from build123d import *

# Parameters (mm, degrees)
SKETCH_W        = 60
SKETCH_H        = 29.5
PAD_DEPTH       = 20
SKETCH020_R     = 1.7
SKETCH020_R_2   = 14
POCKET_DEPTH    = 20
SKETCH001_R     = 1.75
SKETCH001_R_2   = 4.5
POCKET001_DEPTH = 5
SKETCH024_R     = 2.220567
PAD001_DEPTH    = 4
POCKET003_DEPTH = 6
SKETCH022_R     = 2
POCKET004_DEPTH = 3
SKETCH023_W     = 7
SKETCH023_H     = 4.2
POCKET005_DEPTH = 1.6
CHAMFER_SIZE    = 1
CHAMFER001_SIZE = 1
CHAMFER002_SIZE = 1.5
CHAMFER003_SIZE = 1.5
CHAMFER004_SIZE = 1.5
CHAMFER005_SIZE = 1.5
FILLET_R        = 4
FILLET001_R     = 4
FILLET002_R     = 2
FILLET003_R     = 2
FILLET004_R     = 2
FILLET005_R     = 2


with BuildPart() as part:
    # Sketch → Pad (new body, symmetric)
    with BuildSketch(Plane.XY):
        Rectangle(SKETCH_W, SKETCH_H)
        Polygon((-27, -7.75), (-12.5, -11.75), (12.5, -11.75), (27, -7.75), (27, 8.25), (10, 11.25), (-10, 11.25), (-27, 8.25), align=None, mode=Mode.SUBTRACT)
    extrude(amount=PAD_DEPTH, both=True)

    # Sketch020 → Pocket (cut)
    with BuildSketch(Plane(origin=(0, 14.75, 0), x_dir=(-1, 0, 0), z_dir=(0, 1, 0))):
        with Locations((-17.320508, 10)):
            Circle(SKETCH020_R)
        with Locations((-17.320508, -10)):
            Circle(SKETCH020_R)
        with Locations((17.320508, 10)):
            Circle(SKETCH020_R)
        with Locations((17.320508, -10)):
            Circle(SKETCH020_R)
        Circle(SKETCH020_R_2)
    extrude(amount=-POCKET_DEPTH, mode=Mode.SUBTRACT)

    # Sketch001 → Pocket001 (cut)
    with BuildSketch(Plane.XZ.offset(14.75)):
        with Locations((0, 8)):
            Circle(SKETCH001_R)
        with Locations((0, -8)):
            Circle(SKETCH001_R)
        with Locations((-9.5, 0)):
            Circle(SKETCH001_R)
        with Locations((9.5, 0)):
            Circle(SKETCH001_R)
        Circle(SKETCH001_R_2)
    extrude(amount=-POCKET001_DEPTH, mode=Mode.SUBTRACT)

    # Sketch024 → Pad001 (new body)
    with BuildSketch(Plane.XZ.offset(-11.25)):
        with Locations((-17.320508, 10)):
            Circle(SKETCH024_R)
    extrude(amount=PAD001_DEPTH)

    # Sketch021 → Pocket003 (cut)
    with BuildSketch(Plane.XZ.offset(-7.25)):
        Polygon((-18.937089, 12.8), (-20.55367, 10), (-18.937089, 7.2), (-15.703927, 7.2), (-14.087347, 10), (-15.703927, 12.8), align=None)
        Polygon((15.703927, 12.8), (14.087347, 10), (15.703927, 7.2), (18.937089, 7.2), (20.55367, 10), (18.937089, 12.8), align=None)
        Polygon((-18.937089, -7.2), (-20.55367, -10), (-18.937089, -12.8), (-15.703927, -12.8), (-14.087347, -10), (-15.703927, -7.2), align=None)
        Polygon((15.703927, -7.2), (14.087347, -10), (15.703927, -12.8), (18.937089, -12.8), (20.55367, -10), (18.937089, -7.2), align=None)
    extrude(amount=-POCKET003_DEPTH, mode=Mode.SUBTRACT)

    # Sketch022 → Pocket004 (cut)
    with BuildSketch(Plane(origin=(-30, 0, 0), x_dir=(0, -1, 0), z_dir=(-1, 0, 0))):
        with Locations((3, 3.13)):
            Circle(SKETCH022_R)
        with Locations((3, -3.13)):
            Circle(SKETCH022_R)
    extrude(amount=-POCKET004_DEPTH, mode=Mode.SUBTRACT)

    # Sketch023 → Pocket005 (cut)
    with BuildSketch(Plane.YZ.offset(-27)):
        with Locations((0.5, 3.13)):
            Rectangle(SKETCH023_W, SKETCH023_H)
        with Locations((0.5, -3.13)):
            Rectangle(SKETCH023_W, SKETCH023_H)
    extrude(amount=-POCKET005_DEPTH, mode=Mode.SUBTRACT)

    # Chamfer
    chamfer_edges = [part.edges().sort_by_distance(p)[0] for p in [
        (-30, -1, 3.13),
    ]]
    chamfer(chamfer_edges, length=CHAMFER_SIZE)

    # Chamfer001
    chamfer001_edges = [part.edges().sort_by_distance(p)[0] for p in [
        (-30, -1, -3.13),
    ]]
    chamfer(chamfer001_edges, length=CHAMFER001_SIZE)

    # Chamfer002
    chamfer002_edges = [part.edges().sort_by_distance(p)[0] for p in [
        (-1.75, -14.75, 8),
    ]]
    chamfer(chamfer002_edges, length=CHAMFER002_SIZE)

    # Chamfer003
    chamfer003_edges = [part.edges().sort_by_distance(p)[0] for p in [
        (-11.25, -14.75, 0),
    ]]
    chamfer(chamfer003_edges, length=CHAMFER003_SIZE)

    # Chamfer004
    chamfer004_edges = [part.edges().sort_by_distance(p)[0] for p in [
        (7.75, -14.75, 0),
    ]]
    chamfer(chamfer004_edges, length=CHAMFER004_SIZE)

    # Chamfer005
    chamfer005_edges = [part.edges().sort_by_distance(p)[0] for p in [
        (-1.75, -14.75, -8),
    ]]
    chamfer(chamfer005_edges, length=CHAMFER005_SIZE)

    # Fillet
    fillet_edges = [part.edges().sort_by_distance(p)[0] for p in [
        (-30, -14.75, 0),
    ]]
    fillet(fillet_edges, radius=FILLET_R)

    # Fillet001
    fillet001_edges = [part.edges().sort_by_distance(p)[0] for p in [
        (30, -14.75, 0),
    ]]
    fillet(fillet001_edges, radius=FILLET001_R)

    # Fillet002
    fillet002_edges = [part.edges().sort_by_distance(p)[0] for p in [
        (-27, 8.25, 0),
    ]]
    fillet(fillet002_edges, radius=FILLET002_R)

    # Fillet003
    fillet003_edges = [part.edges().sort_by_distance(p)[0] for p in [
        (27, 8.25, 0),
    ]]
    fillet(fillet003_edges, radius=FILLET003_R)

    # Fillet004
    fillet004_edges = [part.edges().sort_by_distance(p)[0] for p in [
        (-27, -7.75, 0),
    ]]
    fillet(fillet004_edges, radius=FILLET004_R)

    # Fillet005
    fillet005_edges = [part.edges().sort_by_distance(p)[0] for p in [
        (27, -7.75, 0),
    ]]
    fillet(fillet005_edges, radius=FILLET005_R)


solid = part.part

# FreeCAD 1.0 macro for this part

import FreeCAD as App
import Part
import Sketcher
from FreeCAD import Vector
Q = App.Units.Quantity


def edges_at(feature, points):
    """Names of the edges that pass closest to the given points."""
    edges = feature.Shape.Edges
    near = lambda p: min(range(len(edges)), key=lambda i: edges[i].distToShape(Part.Vertex(*p))[0])
    return sorted({f"Edge{near(p) + 1}" for p in points})


def add_polygon(sketch, points):
    """Adds a closed chain of lines whose ends are joined by coincident constraints."""
    first, n = sketch.GeometryCount, len(points)
    for a, b in zip(points, points[1:] + points[:1]):
        sketch.addGeometry(Part.LineSegment(App.Vector(*a, 0), App.Vector(*b, 0)), False)
    for i in range(n):
        sketch.addConstraint(Sketcher.Constraint("Coincident", first + i, 2, first + (i + 1) % n, 1))

doc = App.newDocument("Part")
body = doc.addObject("PartDesign::Body", "Body")

# Sketch on XY plane
sketch1 = body.newObject("Sketcher::SketchObject", "Sketch")
sketch1.AttachmentSupport = (doc.getObject("XY_Plane"), [""])
sketch1.MapMode = "FlatFace"
add_polygon(sketch1, [(-30, 15), (-30, -15), (30, -15), (30, 15)])  # lines 0-3
add_polygon(sketch1, [(-12, -12), (-27, -8), (-27, 8), (-10, 11), (10, 11), (27, 8), (27, -8), (12, -12)])  # lines 4-11
sketch1.addConstraint([
    Sketcher.Constraint("Vertical", 0),
    Sketcher.Constraint("Horizontal", 1),
    Sketcher.Constraint("Vertical", 2),
    Sketcher.Constraint("Horizontal", 3),
    Sketcher.Constraint("Vertical", 5),
    Sketcher.Constraint("Horizontal", 7),
    Sketcher.Constraint("Vertical", 9),
    Sketcher.Constraint("Horizontal", 11),
    Sketcher.Constraint("Symmetric", 0, 2, 2, 2, -1, 1),
    Sketcher.Constraint("Symmetric", 5, 2, 8, 2, -2),
    Sketcher.Constraint("Horizontal", 4, 2, 9, 2),
    Sketcher.Constraint("Equal", 6, 8),
    Sketcher.Constraint("Equal", 4, 10),
    Sketcher.Constraint("DistanceX", 1, 1, 1, 2, 60.0),
    Sketcher.Constraint("DistanceX", 7, 1, 7, 2, 20.0),
    Sketcher.Constraint("DistanceX", 11, 2, 11, 1, 25.0),
    Sketcher.Constraint("DistanceY", 5, 1, 5, 2, 16.0),
    Sketcher.Constraint("DistanceY", 0, 2, 0, 1, 29.5),
    Sketcher.Constraint("DistanceX", 4, 2, -1, 1, 27.0),
    Sketcher.Constraint("DistanceY", 0, 2, 4, 2, 7.0),
    Sketcher.Constraint("DistanceY", 5, 2, 6, 2, 3.0),
    Sketcher.Constraint("DistanceY", 10, 2, 9, 2, 4.0),
])
pad1 = body.newObject("PartDesign::Pad", "Pad")
pad1.Profile = sketch1
pad1.Length = 40
pad1.Midplane = True

# Sketch on XZ plane
sketch2 = body.newObject("Sketcher::SketchObject", "Sketch001")
sketch2.AttachmentSupport = (doc.getObject("XZ_Plane"), [""])
sketch2.MapMode = "FlatFace"
sketch2.AttachmentOffset = App.Placement(Vector(0, 0, -14.75), App.Rotation())
sketch2.addGeometry([
    Part.Circle(Vector(17.3, 10, 0), Vector(0, 0, 1), 1.7),  # 0
    Part.Circle(Vector(17.3, -10, 0), Vector(0, 0, 1), 1.7),  # 1
    Part.Circle(Vector(-17.3, 10, 0), Vector(0, 0, 1), 1.7),  # 2
    Part.Circle(Vector(-17.3, -10, 0), Vector(0, 0, 1), 1.7),  # 3
    Part.Circle(Vector(0, 0, 0), Vector(0, 0, 1), 14),  # 4
], False)
sketch2.addConstraint([
    Sketcher.Constraint("Coincident", 4, 3, -1, 1),
    Sketcher.Constraint("Equal", 0, 1),
    Sketcher.Constraint("Equal", 1, 2),
    Sketcher.Constraint("Equal", 2, 3),
    Sketcher.Constraint("Symmetric", 1, 3, 2, 3, -1, 1),
    Sketcher.Constraint("Symmetric", 0, 3, 3, 3, -1, 1),
    Sketcher.Constraint("Symmetric", 0, 3, 2, 3, -2),
    Sketcher.Constraint("Diameter", 4, 28.0),
    Sketcher.Constraint("Diameter", 0, 3.4),
    Sketcher.Constraint("DistanceY", -1, 1, 0, 3, 10.0),
    Sketcher.Constraint("DistanceX", -1, 1, 0, 3, 17.320508),
])
pocket1 = body.newObject("PartDesign::Pocket", "Pocket")
pocket1.Profile = sketch2
pocket1.Length = 20
pocket1.Reversed = True

# Sketch on XZ plane
sketch3 = body.newObject("Sketcher::SketchObject", "Sketch002")
sketch3.AttachmentSupport = (doc.getObject("XZ_Plane"), [""])
sketch3.MapMode = "FlatFace"
sketch3.AttachmentOffset = App.Placement(Vector(0, 0, 14.75), App.Rotation())
sketch3.addGeometry([
    Part.Circle(Vector(0, 8, 0), Vector(0, 0, 1), 1.8),  # 0
    Part.Circle(Vector(0, -8, 0), Vector(0, 0, 1), 1.8),  # 1
    Part.Circle(Vector(-9.5, 0, 0), Vector(0, 0, 1), 1.8),  # 2
    Part.Circle(Vector(9.5, 0, 0), Vector(0, 0, 1), 1.8),  # 3
    Part.Circle(Vector(0, 0, 0), Vector(0, 0, 1), 4.5),  # 4
], False)
sketch3.addConstraint([
    Sketcher.Constraint("Coincident", 4, 3, -1, 1),
    Sketcher.Constraint("Equal", 0, 1),
    Sketcher.Constraint("Equal", 1, 2),
    Sketcher.Constraint("Equal", 2, 3),
    Sketcher.Constraint("Symmetric", 0, 3, 1, 3, -1, 1),
    Sketcher.Constraint("Symmetric", 2, 3, 3, 3, -1, 1),
    Sketcher.Constraint("PointOnObject", 0, 3, -2),
    Sketcher.Constraint("PointOnObject", 2, 3, -1),
    Sketcher.Constraint("Diameter", 4, 9.0),
    Sketcher.Constraint("Diameter", 0, 3.5),
    Sketcher.Constraint("DistanceY", -1, 1, 0, 3, 8.0),
    Sketcher.Constraint("DistanceX", 2, 3, 3, 3, 19.0),
])
pocket2 = body.newObject("PartDesign::Pocket", "Pocket001")
pocket2.Profile = sketch3
pocket2.Length = 5

# Sketch on XZ plane
sketch4 = body.newObject("Sketcher::SketchObject", "Sketch003")
sketch4.AttachmentSupport = (doc.getObject("XZ_Plane"), [""])
sketch4.MapMode = "FlatFace"
sketch4.AttachmentOffset = App.Placement(Vector(0, 0, -11.25), App.Rotation())
sketch4.addGeometry(Part.Circle(Vector(-17.3, 10, 0), Vector(0, 0, 1), 2.2), False)
sketch4.addConstraint([
    Sketcher.Constraint("DistanceY", -1, 1, 0, 3, 10.0),
    Sketcher.Constraint("Diameter", 0, 4.441134),
    Sketcher.Constraint("DistanceX", 0, 3, -1, 1, 17.320508),
])
pad2 = body.newObject("PartDesign::Pad", "Pad001")
pad2.Profile = sketch4
pad2.Length = 4

# Sketch on XZ plane
sketch5 = body.newObject("Sketcher::SketchObject", "Sketch004")
sketch5.AttachmentSupport = (doc.getObject("XZ_Plane"), [""])
sketch5.MapMode = "FlatFace"
sketch5.AttachmentOffset = App.Placement(Vector(0, 0, -7.25), App.Rotation())
add_polygon(sketch5, [(-18.9, 12.8), (-20.6, 10), (-18.9, 7.2), (-15.7, 7.2), (-14.1, 10), (-15.7, 12.8)])  # lines 0-5
add_polygon(sketch5, [(15.7, 12.8), (14.1, 10), (15.7, 7.2), (18.9, 7.2), (20.6, 10), (18.9, 12.8)])  # lines 6-11
add_polygon(sketch5, [(-18.9, -7.2), (-20.6, -10), (-18.9, -12.8), (-15.7, -12.8), (-14.1, -10), (-15.7, -7.2)])  # lines 12-17
add_polygon(sketch5, [(15.7, -7.2), (14.1, -10), (15.7, -12.8), (18.9, -12.8), (20.6, -10), (18.9, -7.2)])  # lines 18-23
sketch5.addConstraint([
    Sketcher.Constraint("Horizontal", 2),
    Sketcher.Constraint("Horizontal", 5),
    Sketcher.Constraint("Horizontal", 8),
    Sketcher.Constraint("Horizontal", 11),
    Sketcher.Constraint("Horizontal", 14),
    Sketcher.Constraint("Horizontal", 17),
    Sketcher.Constraint("Horizontal", 20),
    Sketcher.Constraint("Horizontal", 23),
    Sketcher.Constraint("Symmetric", 9, 2, 12, 2, -1, 1),
    Sketcher.Constraint("Symmetric", 10, 2, 13, 2, -1, 1),
    Sketcher.Constraint("Symmetric", 6, 2, 15, 2, -1, 1),
    Sketcher.Constraint("Symmetric", 7, 2, 16, 2, -1, 1),
    Sketcher.Constraint("Symmetric", 3, 2, 18, 2, -1, 1),
    Sketcher.Constraint("Symmetric", 4, 2, 19, 2, -1, 1),
    Sketcher.Constraint("Symmetric", 0, 2, 21, 2, -1, 1),
    Sketcher.Constraint("Symmetric", 1, 2, 22, 2, -1, 1),
    Sketcher.Constraint("Symmetric", 3, 2, 6, 2, -2),
    Sketcher.Constraint("Symmetric", 2, 2, 7, 2, -2),
    Sketcher.Constraint("Symmetric", 0, 2, 9, 2, -2),
    Sketcher.Constraint("Symmetric", 5, 2, 10, 2, -2),
    Sketcher.Constraint("Parallel", 0, 3),
    Sketcher.Constraint("Parallel", 1, 4),
    Sketcher.Constraint("Parallel", 3, 6),
    Sketcher.Constraint("Parallel", 4, 7),
    Sketcher.Constraint("Parallel", 6, 9),
    Sketcher.Constraint("Parallel", 9, 12),
    Sketcher.Constraint("Parallel", 12, 15),
    Sketcher.Constraint("Parallel", 15, 18),
    Sketcher.Constraint("Parallel", 18, 21),
    Sketcher.Constraint("Horizontal", 0, 2, 3, 2),
    Sketcher.Constraint("Vertical", 2, 2, 4, 2),
    Sketcher.Constraint("Angle", 0, Q("-120.000004 deg")),
    Sketcher.Constraint("DistanceY", -1, 1, 0, 2, 10.0),
    Sketcher.Constraint("DistanceY", -1, 1, 1, 2, 7.2),
    Sketcher.Constraint("DistanceX", 2, 1, 2, 2, 3.233162),
    Sketcher.Constraint("DistanceX", 0, 2, -1, 1, 20.55367),
])
pocket3 = body.newObject("PartDesign::Pocket", "Pocket002")
pocket3.Profile = sketch5
pocket3.Length = 6

# Sketch on YZ plane
sketch6 = body.newObject("Sketcher::SketchObject", "Sketch005")
sketch6.AttachmentSupport = (doc.getObject("YZ_Plane"), [""])
sketch6.MapMode = "FlatFace"
sketch6.AttachmentOffset = App.Placement(Vector(0, 0, -30), App.Rotation())
sketch6.addGeometry([
    Part.Circle(Vector(-3, 3.1, 0), Vector(0, 0, 1), 2),
    Part.Circle(Vector(-3, -3.1, 0), Vector(0, 0, 1), 2),
], False)
sketch6.addConstraint([
    Sketcher.Constraint("Equal", 0, 1),
    Sketcher.Constraint("Symmetric", 0, 3, 1, 3, -1),
    Sketcher.Constraint("Diameter", 0, 4.0),
    Sketcher.Constraint("DistanceX", 0, 3, -1, 1, 3.0),
    Sketcher.Constraint("DistanceY", -1, 1, 0, 3, 3.13),
])
pocket4 = body.newObject("PartDesign::Pocket", "Pocket003")
pocket4.Profile = sketch6
pocket4.Length = 3
pocket4.Reversed = True

# Sketch on YZ plane
sketch7 = body.newObject("Sketcher::SketchObject", "Sketch006")
sketch7.AttachmentSupport = (doc.getObject("YZ_Plane"), [""])
sketch7.MapMode = "FlatFace"
sketch7.AttachmentOffset = App.Placement(Vector(0, 0, -27), App.Rotation())
add_polygon(sketch7, [(-3, 5.2), (-3, 1), (4, 1), (4, 5.2)])  # lines 0-3
add_polygon(sketch7, [(-3, -1), (-3, -5.2), (4, -5.2), (4, -1)])  # lines 4-7
sketch7.addConstraint([
    Sketcher.Constraint("Vertical", 0),
    Sketcher.Constraint("Horizontal", 1),
    Sketcher.Constraint("Vertical", 2),
    Sketcher.Constraint("Horizontal", 3),
    Sketcher.Constraint("Vertical", 4),
    Sketcher.Constraint("Horizontal", 5),
    Sketcher.Constraint("Vertical", 6),
    Sketcher.Constraint("Horizontal", 7),
    Sketcher.Constraint("Symmetric", 3, 2, 4, 2, -1),
    Sketcher.Constraint("Symmetric", 1, 2, 6, 2, -1),
    Sketcher.Constraint("DistanceX", 1, 1, 1, 2, 7.0),
    Sketcher.Constraint("DistanceY", 0, 2, 0, 1, 4.2),
    Sketcher.Constraint("DistanceX", 0, 2, -1, 1, 3.0),
    Sketcher.Constraint("DistanceY", -1, 1, 0, 2, 1.03),
])
pocket5 = body.newObject("PartDesign::Pocket", "Pocket004")
pocket5.Profile = sketch7
pocket5.Length = 1.6
doc.recompute()

chamfer = body.newObject("PartDesign::Chamfer", "Chamfer")
chamfer.Base = (pocket5, edges_at(pocket5, [(-30, -1, 3.13)]))
chamfer.Size = 1
doc.recompute()

chamfer2 = body.newObject("PartDesign::Chamfer", "Chamfer001")
chamfer2.Base = (chamfer, edges_at(chamfer, [(-30, -1, -3.13)]))
chamfer2.Size = 1
doc.recompute()

chamfer3 = body.newObject("PartDesign::Chamfer", "Chamfer002")
chamfer3.Base = (chamfer2, edges_at(chamfer2, [(-1.75, -14.75, 8)]))
chamfer3.Size = 1.5
doc.recompute()

chamfer4 = body.newObject("PartDesign::Chamfer", "Chamfer003")
chamfer4.Base = (chamfer3, edges_at(chamfer3, [(-11.25, -14.75, 0)]))
chamfer4.Size = 1.5
doc.recompute()

chamfer5 = body.newObject("PartDesign::Chamfer", "Chamfer004")
chamfer5.Base = (chamfer4, edges_at(chamfer4, [(7.75, -14.75, 0)]))
chamfer5.Size = 1.5
doc.recompute()

chamfer6 = body.newObject("PartDesign::Chamfer", "Chamfer005")
chamfer6.Base = (chamfer5, edges_at(chamfer5, [(-1.75, -14.75, -8)]))
chamfer6.Size = 1.5
doc.recompute()

fillet = body.newObject("PartDesign::Fillet", "Fillet")
fillet.Base = (chamfer6, edges_at(chamfer6, [(-30, -14.75, 0)]))
fillet.Radius = 4
doc.recompute()

fillet2 = body.newObject("PartDesign::Fillet", "Fillet001")
fillet2.Base = (fillet, edges_at(fillet, [(30, -14.75, 0)]))
fillet2.Radius = 4
doc.recompute()

fillet3 = body.newObject("PartDesign::Fillet", "Fillet002")
fillet3.Base = (fillet2, edges_at(fillet2, [(-27, 8.25, 0)]))
fillet3.Radius = 2
doc.recompute()

fillet4 = body.newObject("PartDesign::Fillet", "Fillet003")
fillet4.Base = (fillet3, edges_at(fillet3, [(27, 8.25, 0)]))
fillet4.Radius = 2
doc.recompute()

fillet5 = body.newObject("PartDesign::Fillet", "Fillet004")
fillet5.Base = (fillet4, edges_at(fillet4, [(-27, -7.75, 0)]))
fillet5.Radius = 2
doc.recompute()

fillet6 = body.newObject("PartDesign::Fillet", "Fillet005")
fillet6.Base = (fillet5, edges_at(fillet5, [(27, -7.75, 0)]))
fillet6.Radius = 2

doc.recompute()
